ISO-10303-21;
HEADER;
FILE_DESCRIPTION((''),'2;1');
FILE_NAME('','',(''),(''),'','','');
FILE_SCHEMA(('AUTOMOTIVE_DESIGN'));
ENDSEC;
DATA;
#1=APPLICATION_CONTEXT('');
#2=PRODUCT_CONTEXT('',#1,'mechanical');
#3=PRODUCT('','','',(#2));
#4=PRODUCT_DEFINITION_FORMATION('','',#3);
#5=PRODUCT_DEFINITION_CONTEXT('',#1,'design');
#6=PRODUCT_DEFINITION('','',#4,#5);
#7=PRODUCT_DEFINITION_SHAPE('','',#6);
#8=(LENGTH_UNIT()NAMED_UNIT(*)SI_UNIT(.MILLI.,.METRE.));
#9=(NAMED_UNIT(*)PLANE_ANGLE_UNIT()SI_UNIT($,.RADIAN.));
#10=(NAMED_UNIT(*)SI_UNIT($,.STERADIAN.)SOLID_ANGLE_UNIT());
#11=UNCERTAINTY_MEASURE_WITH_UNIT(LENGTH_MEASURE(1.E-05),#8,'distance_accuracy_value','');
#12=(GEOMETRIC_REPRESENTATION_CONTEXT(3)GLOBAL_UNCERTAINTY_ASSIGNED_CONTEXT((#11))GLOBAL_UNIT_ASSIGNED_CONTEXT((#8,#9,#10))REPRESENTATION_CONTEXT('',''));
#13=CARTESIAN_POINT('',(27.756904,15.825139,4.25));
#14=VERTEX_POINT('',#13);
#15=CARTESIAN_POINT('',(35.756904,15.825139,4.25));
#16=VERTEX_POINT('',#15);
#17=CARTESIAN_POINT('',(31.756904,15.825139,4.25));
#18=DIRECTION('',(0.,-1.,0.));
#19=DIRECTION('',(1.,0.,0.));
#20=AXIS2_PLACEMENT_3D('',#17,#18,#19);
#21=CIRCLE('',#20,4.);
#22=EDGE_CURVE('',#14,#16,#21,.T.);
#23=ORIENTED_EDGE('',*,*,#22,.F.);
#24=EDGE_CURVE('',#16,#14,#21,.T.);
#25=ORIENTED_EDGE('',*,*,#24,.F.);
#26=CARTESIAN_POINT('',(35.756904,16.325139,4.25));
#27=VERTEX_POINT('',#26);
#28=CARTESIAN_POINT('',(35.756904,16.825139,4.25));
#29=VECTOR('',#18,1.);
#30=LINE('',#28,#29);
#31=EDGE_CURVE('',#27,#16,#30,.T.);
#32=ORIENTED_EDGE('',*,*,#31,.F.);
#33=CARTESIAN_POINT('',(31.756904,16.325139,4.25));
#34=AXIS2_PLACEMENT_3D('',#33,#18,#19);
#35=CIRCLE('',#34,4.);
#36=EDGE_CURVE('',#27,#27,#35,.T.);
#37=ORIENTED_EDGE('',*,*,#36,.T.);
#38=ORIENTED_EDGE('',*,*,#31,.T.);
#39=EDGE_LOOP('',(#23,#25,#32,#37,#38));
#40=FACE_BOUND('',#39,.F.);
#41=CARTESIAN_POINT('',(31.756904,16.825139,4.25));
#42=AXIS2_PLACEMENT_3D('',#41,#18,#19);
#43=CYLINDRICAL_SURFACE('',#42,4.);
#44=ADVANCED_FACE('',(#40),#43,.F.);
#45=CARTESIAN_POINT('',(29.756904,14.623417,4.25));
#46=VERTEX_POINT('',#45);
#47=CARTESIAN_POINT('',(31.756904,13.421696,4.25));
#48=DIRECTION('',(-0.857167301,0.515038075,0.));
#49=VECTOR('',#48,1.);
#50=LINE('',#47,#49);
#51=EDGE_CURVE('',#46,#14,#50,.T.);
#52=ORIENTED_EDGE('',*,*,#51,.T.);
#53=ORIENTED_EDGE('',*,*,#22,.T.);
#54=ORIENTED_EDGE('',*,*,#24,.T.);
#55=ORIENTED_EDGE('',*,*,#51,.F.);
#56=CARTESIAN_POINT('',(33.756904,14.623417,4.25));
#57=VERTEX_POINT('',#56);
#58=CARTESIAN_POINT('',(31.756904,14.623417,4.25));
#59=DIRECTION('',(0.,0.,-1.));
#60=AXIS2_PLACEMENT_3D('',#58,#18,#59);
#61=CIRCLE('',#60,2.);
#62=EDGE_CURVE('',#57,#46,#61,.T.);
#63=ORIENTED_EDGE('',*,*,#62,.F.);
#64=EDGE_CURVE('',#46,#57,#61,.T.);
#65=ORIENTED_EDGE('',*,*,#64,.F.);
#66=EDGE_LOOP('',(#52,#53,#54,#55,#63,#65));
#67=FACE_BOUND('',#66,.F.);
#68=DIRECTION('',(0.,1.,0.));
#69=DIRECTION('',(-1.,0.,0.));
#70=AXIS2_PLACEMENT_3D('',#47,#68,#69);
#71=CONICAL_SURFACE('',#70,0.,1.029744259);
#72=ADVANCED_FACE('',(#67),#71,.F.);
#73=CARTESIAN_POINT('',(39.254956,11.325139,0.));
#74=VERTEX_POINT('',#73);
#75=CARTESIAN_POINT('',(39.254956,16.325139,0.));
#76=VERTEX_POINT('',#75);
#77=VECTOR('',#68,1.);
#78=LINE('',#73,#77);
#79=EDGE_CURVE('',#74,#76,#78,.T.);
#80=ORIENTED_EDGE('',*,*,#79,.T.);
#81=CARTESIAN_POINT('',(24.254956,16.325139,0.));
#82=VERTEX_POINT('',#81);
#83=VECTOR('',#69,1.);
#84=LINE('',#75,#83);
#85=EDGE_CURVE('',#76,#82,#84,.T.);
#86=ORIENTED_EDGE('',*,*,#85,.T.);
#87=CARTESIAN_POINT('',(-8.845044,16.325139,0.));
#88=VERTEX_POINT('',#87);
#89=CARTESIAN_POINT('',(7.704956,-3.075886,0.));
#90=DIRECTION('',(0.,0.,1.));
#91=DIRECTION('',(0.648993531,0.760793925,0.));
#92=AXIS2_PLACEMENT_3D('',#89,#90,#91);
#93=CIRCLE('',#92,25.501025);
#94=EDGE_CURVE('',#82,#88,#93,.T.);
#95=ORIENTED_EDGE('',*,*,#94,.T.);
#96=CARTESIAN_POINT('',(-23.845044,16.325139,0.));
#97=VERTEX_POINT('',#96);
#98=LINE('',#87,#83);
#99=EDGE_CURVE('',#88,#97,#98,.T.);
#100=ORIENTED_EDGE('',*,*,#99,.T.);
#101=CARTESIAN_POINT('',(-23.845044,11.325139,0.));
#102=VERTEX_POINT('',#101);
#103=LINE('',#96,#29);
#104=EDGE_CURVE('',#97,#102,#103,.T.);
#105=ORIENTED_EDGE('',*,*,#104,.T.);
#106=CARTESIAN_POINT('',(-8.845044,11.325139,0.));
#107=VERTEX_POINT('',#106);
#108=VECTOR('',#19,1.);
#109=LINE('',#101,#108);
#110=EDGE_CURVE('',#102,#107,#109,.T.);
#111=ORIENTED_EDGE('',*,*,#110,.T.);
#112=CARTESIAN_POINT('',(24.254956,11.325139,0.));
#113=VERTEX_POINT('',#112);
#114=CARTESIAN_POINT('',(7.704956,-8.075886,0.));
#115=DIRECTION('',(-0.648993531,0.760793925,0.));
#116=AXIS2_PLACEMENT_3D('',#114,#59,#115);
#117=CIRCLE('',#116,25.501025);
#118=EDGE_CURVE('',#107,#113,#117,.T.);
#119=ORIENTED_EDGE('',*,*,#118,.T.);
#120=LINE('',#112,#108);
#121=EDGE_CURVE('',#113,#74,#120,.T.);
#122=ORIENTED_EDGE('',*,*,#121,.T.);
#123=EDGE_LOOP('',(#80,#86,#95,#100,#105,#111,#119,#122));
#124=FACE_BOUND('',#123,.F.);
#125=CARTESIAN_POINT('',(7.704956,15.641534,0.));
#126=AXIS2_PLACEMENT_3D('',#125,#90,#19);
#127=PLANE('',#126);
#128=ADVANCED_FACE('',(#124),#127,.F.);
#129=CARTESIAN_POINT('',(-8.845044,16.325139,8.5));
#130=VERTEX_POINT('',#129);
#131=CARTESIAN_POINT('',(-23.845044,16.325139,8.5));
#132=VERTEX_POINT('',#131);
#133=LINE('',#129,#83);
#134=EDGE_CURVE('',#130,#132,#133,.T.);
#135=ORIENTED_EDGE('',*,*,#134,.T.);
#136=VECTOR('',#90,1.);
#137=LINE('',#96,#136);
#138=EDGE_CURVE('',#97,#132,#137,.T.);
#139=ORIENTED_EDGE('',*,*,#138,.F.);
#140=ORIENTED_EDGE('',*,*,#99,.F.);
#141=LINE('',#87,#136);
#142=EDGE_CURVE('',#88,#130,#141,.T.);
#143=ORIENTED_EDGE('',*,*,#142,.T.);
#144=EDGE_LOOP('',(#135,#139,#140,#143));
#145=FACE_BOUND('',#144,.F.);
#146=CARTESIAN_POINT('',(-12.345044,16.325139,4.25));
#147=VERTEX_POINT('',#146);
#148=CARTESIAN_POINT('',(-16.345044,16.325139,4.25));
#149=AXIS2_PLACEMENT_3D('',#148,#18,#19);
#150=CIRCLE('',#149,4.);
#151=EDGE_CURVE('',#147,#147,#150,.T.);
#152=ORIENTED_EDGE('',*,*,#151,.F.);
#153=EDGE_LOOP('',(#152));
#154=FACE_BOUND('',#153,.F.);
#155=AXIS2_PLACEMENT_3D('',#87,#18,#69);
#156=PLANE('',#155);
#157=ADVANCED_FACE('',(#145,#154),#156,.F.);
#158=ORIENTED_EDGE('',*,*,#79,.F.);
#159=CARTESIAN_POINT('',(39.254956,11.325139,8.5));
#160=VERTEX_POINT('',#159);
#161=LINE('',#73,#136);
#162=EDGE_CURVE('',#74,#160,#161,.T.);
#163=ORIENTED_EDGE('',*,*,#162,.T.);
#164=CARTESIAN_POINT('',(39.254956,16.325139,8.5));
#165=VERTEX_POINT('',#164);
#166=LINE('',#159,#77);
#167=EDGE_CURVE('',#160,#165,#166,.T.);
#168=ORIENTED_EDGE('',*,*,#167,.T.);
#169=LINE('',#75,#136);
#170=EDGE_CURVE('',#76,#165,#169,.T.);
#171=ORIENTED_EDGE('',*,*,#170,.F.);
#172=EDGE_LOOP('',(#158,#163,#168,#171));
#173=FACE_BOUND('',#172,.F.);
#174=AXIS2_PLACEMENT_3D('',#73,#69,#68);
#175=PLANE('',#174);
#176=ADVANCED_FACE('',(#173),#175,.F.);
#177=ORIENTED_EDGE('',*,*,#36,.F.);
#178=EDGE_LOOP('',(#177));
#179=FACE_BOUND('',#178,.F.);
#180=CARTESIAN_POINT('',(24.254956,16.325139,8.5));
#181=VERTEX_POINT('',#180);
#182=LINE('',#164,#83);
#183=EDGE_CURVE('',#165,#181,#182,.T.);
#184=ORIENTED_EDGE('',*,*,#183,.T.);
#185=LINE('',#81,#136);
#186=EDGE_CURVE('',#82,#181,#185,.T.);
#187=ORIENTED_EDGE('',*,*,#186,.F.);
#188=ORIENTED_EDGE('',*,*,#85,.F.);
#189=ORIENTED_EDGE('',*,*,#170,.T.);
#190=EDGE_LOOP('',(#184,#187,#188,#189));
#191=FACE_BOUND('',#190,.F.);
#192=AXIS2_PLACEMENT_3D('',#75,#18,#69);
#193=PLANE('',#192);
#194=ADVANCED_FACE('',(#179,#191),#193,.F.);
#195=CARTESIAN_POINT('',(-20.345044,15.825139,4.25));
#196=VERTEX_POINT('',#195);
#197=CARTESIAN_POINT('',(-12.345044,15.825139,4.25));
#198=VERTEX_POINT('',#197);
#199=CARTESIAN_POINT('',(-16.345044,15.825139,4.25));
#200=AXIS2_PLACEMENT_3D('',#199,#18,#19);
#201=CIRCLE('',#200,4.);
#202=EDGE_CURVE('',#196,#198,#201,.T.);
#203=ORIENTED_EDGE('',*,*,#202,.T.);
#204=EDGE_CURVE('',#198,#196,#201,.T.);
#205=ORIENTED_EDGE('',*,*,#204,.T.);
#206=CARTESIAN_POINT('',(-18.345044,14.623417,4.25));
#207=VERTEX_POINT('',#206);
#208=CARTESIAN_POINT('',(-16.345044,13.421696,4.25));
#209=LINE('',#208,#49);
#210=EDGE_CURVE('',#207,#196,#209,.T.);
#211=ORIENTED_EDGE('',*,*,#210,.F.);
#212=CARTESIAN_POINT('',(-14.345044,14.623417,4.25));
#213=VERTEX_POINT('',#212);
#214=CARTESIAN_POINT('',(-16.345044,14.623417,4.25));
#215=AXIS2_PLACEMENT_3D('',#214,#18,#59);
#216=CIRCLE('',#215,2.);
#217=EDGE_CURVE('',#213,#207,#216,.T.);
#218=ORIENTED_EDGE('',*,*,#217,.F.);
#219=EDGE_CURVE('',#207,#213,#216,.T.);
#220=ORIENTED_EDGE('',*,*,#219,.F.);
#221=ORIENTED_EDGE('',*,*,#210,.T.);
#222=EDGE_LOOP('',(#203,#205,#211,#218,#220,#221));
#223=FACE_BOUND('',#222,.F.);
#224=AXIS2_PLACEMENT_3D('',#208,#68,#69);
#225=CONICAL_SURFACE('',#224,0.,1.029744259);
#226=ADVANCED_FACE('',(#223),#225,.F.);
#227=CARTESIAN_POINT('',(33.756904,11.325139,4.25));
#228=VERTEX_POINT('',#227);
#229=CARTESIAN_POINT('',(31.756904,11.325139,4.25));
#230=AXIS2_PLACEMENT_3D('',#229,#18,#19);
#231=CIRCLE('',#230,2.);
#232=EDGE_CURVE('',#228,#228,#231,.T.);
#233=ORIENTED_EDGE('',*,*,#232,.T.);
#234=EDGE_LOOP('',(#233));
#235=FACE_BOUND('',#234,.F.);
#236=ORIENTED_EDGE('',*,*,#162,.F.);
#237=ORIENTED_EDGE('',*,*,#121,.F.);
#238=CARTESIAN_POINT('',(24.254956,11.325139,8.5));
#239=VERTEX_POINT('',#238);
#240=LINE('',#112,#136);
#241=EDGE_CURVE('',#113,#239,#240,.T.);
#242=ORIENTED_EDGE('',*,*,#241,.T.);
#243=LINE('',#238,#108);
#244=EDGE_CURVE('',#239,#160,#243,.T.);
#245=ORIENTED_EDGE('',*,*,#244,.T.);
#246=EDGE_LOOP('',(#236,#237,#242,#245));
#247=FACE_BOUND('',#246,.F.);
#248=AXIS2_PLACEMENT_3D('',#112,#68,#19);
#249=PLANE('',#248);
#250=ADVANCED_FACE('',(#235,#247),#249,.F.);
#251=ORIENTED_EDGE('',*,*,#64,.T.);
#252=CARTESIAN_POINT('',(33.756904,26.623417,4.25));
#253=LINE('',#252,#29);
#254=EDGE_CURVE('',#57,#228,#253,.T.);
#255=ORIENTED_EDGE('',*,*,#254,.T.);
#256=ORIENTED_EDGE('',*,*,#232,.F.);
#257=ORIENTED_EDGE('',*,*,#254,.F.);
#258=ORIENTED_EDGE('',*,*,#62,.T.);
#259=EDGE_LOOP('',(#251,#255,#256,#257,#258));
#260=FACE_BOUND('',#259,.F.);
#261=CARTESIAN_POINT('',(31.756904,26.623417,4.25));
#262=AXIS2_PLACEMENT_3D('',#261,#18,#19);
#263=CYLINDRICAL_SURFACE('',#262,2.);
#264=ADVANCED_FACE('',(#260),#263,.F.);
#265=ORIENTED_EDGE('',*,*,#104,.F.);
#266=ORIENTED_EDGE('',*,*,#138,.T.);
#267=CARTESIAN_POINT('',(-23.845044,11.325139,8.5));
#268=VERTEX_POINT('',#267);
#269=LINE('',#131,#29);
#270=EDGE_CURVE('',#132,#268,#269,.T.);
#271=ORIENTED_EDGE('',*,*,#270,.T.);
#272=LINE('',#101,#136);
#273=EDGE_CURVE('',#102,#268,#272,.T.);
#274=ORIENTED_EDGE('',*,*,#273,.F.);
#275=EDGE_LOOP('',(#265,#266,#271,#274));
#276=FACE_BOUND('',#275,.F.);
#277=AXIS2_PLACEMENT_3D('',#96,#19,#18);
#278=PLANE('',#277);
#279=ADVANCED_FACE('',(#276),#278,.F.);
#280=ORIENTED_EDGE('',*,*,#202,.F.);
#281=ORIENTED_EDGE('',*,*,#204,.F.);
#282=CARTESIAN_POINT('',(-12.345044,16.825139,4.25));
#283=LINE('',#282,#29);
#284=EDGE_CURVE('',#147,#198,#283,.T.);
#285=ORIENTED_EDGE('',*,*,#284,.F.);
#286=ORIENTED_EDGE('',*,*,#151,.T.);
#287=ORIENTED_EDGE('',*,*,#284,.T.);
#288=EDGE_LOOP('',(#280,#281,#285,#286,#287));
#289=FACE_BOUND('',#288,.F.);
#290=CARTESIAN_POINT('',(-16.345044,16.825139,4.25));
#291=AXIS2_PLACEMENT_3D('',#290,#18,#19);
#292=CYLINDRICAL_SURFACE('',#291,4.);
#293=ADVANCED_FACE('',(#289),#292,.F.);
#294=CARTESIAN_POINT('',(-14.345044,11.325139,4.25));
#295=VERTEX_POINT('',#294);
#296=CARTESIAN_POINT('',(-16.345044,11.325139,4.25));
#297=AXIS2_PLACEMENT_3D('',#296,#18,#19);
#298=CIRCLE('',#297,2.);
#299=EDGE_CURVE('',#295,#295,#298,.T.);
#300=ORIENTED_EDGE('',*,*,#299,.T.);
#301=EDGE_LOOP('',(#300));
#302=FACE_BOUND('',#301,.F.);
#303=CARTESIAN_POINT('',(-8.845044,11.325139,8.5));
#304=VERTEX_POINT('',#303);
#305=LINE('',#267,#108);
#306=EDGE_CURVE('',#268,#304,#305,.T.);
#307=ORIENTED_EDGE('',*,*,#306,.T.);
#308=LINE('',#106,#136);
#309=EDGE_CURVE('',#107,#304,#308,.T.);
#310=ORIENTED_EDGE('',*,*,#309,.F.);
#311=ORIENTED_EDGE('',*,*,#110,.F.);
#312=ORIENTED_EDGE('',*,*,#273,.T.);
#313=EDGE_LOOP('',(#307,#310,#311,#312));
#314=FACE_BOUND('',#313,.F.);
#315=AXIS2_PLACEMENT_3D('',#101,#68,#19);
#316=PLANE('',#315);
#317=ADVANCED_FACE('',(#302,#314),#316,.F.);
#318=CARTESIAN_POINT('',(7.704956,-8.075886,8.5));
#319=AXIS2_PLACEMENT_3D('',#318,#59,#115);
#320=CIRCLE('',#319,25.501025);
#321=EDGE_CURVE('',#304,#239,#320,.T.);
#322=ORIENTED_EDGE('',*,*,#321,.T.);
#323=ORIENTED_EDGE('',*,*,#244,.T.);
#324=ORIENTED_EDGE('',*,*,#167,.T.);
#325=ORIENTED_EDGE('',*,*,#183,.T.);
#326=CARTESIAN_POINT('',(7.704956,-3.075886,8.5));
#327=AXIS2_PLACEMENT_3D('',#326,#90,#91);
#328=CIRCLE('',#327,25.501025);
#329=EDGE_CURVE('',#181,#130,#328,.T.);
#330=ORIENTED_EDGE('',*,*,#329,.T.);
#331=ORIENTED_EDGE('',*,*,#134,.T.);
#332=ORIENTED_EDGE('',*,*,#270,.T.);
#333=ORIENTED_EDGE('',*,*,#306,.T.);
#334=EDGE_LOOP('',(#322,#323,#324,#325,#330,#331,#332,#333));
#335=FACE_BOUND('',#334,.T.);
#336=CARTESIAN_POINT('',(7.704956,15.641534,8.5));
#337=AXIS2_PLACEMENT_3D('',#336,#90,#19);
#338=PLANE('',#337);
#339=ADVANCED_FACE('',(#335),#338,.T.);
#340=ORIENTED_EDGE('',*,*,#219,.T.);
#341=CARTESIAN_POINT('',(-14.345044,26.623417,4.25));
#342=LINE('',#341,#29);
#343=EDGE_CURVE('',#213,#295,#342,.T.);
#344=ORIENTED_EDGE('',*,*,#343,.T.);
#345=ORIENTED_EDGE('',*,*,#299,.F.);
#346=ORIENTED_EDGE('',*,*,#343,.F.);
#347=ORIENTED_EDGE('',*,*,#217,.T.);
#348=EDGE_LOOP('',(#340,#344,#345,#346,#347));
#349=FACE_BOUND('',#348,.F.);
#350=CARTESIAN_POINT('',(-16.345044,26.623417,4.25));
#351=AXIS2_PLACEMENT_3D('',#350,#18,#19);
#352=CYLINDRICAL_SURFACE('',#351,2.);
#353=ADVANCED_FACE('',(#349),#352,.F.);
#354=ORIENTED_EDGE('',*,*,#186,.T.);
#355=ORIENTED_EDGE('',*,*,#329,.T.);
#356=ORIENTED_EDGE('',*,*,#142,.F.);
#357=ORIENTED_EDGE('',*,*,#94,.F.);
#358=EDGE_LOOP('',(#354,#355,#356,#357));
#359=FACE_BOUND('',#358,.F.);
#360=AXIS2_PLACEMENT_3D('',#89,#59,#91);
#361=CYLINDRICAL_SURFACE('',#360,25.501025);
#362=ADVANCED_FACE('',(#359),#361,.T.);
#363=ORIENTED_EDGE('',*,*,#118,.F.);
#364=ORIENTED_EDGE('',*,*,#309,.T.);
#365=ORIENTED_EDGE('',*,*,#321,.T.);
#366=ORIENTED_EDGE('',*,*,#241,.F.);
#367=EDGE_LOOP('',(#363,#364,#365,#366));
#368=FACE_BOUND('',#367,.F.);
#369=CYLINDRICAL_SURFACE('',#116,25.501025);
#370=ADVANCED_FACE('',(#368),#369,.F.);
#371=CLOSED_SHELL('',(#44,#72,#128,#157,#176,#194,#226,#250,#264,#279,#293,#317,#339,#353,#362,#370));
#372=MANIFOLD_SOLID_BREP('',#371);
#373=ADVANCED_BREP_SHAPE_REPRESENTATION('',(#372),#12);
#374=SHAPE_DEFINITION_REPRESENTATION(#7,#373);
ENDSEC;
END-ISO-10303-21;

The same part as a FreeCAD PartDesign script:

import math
import FreeCAD as App
import Part
import Sketcher
from FreeCAD import Vector

doc = App.newDocument("Part")
body = doc.addObject("PartDesign::Body", "Body")

sketch1 = body.newObject("Sketcher::SketchObject", "Sketch")
sketch1.AttachmentSupport = (doc.getObject("XY_Plane"), [""])
sketch1.MapMode = "FlatFace"
sketch1.addGeometry(Part.ArcOfCircle(Part.Circle(Vector(8, -8, 0), Vector(0, 0, 1), 26), math.radians(50), math.radians(130)), False)
sketch1.addGeometry(Part.LineSegment(Vector(24, 11, 0), Vector(39, 11, 0)), False)
sketch1.addGeometry(Part.LineSegment(Vector(39, 11, 0), Vector(39, 16, 0)), False)
sketch1.addGeometry(Part.LineSegment(Vector(39, 16, 0), Vector(24, 16, 0)), False)
sketch1.addGeometry(Part.ArcOfCircle(Part.Circle(Vector(8, -3, 0), Vector(0, 0, 1), 26), math.radians(50), math.radians(130)), False)
sketch1.addGeometry(Part.LineSegment(Vector(-9, 16, 0), Vector(-24, 16, 0)), False)
sketch1.addGeometry(Part.LineSegment(Vector(-24, 16, 0), Vector(-24, 11, 0)), False)
sketch1.addGeometry(Part.LineSegment(Vector(-24, 11, 0), Vector(-9, 11, 0)), False)
sketch1.addConstraint(Sketcher.Constraint("Coincident", 0, 1, 1, 1))
sketch1.addConstraint(Sketcher.Constraint("Coincident", 1, 2, 2, 1))
sketch1.addConstraint(Sketcher.Constraint("Coincident", 2, 2, 3, 1))
sketch1.addConstraint(Sketcher.Constraint("Coincident", 3, 2, 4, 1))
sketch1.addConstraint(Sketcher.Constraint("Coincident", 4, 2, 5, 1))
sketch1.addConstraint(Sketcher.Constraint("Coincident", 5, 2, 6, 1))
sketch1.addConstraint(Sketcher.Constraint("Coincident", 6, 2, 7, 1))
sketch1.addConstraint(Sketcher.Constraint("Coincident", 7, 2, 0, 2))
sketch1.addConstraint(Sketcher.Constraint("Horizontal", 1))
sketch1.addConstraint(Sketcher.Constraint("Vertical", 2))
sketch1.addConstraint(Sketcher.Constraint("Horizontal", 3))
sketch1.addConstraint(Sketcher.Constraint("Horizontal", 5))
sketch1.addConstraint(Sketcher.Constraint("Vertical", 6))
sketch1.addConstraint(Sketcher.Constraint("Horizontal", 7))
sketch1.addConstraint(Sketcher.Constraint("Equal", 0, 4))
sketch1.addConstraint(Sketcher.Constraint("Horizontal", 3, 2, 4, 2))
sketch1.addConstraint(Sketcher.Constraint("Horizontal", 1, 2, 6, 2))
sketch1.addConstraint(Sketcher.Constraint("Vertical", 0, 3, 4, 3))
sketch1.addConstraint(Sketcher.Constraint("Vertical", 0, 1, 3, 2))
sketch1.addConstraint(Sketcher.Constraint("Equal", 3, 5))
sketch1.addConstraint(Sketcher.Constraint("DistanceX", 1, 1, 1, 2, 15.0))
sketch1.addConstraint(Sketcher.Constraint("DistanceY", 2, 1, 2, 2, 5.0))
sketch1.addConstraint(Sketcher.Constraint("DistanceX", 4, 2, 3, 2, 33.1))
sketch1.addConstraint(Sketcher.Constraint("Radius", 0, 25.501025))
sketch1.addConstraint(Sketcher.Constraint("DistanceY", -1, 1, 0, 1, 11.325139))
sketch1.addConstraint(Sketcher.Constraint("DistanceX", -1, 1, 0, 3, 7.704956))
pad1 = body.newObject("PartDesign::Pad", "Pad")
pad1.Profile = sketch1
pad1.Length = 8.5

sketch2 = body.newObject("Sketcher::SketchObject", "Sketch001")
sketch2.AttachmentSupport = (doc.getObject("XZ_Plane"), [""])
sketch2.MapMode = "FlatFace"
sketch2.AttachmentOffset = App.Placement(Vector(0, 0, -16.325139), App.Rotation())
sketch2.addGeometry(Part.Circle(Vector(31.8, 4.2, 0), Vector(0, 0, 1), 4), False)
sketch2.addGeometry(Part.Circle(Vector(-16.3, 4.2, 0), Vector(0, 0, 1), 4), False)
sketch2.addConstraint(Sketcher.Constraint("Equal", 0, 1))
sketch2.addConstraint(Sketcher.Constraint("Horizontal", 0, 3, 1, 3))
sketch2.addConstraint(Sketcher.Constraint("Diameter", 0, 8.0))
sketch2.addConstraint(Sketcher.Constraint("DistanceY", -1, 1, 0, 3, 4.25))
sketch2.addConstraint(Sketcher.Constraint("DistanceX", 1, 3, 0, 3, 48.101949))
sketch2.addConstraint(Sketcher.Constraint("DistanceX", -1, 1, 0, 3, 31.756904))
doc.recompute()
hole = body.newObject("PartDesign::Hole", "Hole")
hole.Profile = sketch2
hole.ThreadType = "None"
hole.Diameter = 8
hole.DepthType = "Dimension"
hole.Depth = 0.5
hole.DrillPoint = "Angled"
hole.DrillPointAngle = 118
hole.Reversed = True

sketch3 = body.newObject("Sketcher::SketchObject", "Sketch002")
sketch3.AttachmentSupport = (doc.getObject("XZ_Plane"), [""])
sketch3.MapMode = "FlatFace"
sketch3.AttachmentOffset = App.Placement(Vector(0, 0, -14.623417), App.Rotation())
sketch3.addGeometry(Part.Circle(Vector(31.8, 4.2, 0), Vector(0, 0, 1), 2), False)
sketch3.addGeometry(Part.Circle(Vector(-16.3, 4.2, 0), Vector(0, 0, 1), 2), False)
sketch3.addConstraint(Sketcher.Constraint("Equal", 0, 1))
sketch3.addConstraint(Sketcher.Constraint("Horizontal", 0, 3, 1, 3))
sketch3.addConstraint(Sketcher.Constraint("Diameter", 0, 4.0))
sketch3.addConstraint(Sketcher.Constraint("DistanceY", -1, 1, 0, 3, 4.25))
sketch3.addConstraint(Sketcher.Constraint("DistanceX", 1, 3, 0, 3, 48.101949))
sketch3.addConstraint(Sketcher.Constraint("DistanceX", -1, 1, 0, 3, 31.756904))
doc.recompute()
hole2 = body.newObject("PartDesign::Hole", "Hole001")
hole2.Profile = sketch3
hole2.ThreadType = "None"
hole2.Diameter = 4
hole2.DepthType = "Dimension"
hole2.Depth = 12
hole2.DrillPoint = "Angled"
hole2.DrillPointAngle = 118
hole2.Reversed = True

doc.recompute()
